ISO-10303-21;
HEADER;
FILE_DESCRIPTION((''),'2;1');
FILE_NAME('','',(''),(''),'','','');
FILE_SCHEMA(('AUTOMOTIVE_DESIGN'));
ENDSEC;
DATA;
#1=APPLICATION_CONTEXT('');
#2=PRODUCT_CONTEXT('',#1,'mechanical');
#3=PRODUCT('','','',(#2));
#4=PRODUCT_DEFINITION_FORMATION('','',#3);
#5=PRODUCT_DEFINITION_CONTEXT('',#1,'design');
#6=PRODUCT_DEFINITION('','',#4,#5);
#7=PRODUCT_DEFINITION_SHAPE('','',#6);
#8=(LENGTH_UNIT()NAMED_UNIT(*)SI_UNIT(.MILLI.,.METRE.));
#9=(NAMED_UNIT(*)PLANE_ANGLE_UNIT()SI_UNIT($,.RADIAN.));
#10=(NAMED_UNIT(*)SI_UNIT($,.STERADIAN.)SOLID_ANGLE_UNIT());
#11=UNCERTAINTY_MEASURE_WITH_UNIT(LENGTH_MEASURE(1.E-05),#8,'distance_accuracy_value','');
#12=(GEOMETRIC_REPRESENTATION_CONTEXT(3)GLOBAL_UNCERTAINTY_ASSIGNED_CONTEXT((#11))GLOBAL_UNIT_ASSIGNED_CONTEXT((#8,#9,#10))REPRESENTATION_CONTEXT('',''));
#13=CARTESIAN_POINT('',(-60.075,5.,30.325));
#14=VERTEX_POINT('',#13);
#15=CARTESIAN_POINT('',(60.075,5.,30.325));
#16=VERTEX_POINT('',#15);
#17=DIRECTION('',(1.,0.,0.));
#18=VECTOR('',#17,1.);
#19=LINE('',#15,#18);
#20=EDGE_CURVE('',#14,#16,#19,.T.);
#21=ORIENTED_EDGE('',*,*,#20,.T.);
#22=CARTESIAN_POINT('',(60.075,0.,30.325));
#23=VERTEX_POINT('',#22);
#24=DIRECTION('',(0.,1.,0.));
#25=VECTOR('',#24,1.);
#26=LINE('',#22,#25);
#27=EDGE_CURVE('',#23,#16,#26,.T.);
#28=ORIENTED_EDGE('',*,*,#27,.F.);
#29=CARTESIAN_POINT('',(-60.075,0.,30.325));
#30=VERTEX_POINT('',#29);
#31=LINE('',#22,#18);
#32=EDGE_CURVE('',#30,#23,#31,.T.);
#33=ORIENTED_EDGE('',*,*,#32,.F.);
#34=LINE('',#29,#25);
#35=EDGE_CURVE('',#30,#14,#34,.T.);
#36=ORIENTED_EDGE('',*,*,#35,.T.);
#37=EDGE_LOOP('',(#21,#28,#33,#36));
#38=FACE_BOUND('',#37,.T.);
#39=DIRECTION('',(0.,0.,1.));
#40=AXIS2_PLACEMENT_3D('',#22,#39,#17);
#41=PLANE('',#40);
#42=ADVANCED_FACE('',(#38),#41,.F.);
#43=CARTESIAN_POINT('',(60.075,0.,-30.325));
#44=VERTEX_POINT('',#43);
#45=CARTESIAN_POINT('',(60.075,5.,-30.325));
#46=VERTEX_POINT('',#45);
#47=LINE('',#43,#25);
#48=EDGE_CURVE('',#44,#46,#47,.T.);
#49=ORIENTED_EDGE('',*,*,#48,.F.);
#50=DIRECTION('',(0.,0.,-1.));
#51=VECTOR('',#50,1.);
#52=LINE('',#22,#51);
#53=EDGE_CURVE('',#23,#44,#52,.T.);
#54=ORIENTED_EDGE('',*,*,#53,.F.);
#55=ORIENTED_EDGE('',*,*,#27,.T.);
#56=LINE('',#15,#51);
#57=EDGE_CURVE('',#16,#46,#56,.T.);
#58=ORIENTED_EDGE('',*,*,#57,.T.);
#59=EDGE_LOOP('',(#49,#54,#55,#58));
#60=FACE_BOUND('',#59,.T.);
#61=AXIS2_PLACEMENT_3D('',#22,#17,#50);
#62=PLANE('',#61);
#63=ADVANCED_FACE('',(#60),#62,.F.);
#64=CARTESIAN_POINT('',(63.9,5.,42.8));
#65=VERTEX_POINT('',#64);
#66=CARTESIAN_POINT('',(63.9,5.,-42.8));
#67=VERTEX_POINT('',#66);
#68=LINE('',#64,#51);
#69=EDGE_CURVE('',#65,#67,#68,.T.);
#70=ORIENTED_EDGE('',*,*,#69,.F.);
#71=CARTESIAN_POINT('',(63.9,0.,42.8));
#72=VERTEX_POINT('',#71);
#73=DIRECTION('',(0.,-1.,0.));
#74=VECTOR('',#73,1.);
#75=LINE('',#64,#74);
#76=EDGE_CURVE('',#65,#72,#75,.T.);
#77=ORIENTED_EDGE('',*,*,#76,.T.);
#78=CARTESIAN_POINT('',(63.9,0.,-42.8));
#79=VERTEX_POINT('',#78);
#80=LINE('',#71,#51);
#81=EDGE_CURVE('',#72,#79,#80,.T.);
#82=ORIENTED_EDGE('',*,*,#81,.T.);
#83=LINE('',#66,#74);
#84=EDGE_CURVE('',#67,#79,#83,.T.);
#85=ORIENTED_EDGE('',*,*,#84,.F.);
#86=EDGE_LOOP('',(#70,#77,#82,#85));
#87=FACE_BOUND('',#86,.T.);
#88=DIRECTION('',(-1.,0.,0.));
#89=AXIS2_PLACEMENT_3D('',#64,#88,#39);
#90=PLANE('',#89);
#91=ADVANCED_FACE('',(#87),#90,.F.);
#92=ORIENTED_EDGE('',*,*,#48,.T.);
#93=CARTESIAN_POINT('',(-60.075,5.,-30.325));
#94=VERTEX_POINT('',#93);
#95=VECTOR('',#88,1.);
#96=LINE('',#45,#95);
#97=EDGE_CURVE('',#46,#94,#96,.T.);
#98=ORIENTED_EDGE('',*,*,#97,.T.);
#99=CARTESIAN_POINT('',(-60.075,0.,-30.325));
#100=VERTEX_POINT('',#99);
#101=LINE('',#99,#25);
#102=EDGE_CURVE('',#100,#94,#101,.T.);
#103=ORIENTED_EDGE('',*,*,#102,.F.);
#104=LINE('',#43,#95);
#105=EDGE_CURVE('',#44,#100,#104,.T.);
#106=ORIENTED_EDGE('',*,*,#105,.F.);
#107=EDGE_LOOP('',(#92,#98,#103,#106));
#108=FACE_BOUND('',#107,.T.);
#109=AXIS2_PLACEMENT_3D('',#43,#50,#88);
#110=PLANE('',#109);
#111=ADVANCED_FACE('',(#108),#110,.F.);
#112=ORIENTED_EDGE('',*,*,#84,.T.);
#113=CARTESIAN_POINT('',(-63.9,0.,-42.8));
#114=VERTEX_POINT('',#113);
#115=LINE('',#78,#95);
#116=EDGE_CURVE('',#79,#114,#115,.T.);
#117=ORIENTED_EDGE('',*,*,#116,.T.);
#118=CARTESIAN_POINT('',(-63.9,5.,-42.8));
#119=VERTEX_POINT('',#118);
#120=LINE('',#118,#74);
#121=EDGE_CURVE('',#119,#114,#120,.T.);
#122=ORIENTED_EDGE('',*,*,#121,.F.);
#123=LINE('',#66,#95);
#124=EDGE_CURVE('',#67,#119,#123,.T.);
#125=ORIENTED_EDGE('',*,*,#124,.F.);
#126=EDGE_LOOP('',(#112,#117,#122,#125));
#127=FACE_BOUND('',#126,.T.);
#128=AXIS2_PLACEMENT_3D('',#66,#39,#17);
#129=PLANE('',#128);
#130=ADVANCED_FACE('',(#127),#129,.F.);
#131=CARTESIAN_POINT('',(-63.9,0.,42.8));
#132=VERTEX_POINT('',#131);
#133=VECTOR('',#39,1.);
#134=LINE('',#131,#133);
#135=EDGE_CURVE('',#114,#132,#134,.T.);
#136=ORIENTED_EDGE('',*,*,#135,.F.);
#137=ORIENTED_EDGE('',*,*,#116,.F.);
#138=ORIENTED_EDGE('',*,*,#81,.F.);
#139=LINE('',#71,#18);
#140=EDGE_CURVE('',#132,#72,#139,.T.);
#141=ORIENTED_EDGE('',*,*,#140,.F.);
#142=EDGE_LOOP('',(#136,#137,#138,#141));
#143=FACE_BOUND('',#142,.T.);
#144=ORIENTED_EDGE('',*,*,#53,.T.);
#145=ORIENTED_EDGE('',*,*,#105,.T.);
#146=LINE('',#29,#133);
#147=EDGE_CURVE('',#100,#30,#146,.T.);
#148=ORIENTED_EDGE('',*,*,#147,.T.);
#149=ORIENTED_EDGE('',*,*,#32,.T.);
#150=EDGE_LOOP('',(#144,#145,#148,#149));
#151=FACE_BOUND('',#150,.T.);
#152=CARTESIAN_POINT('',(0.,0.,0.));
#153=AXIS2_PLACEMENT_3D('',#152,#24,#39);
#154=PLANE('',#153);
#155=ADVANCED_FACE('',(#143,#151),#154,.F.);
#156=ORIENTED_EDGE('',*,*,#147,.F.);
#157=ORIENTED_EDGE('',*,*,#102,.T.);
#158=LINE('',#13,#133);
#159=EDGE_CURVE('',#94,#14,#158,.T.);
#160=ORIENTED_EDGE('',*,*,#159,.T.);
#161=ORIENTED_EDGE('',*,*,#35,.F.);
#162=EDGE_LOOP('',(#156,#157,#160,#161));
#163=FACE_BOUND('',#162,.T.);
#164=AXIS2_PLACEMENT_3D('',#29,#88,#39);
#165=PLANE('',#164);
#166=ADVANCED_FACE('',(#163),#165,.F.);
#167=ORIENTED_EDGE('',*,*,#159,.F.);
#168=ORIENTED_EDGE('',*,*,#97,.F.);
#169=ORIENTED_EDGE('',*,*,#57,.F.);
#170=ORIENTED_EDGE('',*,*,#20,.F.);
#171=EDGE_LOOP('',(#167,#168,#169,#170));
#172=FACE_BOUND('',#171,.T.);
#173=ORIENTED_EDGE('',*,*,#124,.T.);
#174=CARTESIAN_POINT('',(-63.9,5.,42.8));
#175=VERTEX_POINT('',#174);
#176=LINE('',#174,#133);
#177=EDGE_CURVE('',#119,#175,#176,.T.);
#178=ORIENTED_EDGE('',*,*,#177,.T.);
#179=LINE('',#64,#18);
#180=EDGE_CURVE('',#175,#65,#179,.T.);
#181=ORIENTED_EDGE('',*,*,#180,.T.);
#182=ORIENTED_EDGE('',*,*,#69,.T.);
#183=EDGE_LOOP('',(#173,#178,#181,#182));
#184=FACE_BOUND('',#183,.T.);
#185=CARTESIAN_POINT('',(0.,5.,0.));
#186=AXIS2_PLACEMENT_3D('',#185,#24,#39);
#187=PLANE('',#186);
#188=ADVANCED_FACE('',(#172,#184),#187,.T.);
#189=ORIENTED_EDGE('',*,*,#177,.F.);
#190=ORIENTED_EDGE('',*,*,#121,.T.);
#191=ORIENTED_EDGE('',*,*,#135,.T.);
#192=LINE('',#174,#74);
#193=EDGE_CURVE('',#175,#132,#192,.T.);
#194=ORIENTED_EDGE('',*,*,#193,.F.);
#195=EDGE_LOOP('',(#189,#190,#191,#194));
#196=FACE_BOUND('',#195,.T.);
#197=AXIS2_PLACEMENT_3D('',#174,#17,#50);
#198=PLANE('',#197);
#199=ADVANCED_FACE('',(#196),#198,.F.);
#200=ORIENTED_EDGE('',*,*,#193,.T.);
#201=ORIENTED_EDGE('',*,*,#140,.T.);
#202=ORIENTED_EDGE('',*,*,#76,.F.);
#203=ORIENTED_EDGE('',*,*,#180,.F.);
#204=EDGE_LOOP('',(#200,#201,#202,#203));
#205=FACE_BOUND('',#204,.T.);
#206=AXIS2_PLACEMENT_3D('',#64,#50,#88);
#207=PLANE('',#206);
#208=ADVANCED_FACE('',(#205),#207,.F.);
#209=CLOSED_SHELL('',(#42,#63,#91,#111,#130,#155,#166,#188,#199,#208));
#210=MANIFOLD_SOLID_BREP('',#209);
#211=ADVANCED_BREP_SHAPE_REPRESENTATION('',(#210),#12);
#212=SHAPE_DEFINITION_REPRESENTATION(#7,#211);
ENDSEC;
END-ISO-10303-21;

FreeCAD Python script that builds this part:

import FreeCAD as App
import Part
import Sketcher

V = App.Vector
Q = App.Units.Quantity

doc = App.newDocument("Part")
body = doc.addObject("PartDesign::Body", "Body")

# Sketch on XZ plane
sketch1 = body.newObject("Sketcher::SketchObject", "Sketch")
sketch1.AttachmentSupport = (doc.getObject("XZ_Plane"), [""])
sketch1.MapMode = "FlatFace"
sketch1.addGeometry([
    Part.LineSegment(V(-64, -43, 0), V(-64, 43, 0)),
    Part.LineSegment(V(-64, 43, 0), V(64, 43, 0)),
    Part.LineSegment(V(64, 43, 0), V(64, -43, 0)),
    Part.LineSegment(V(64, -43, 0), V(-64, -43, 0)),
], False)
sketch1.addConstraint([
    Sketcher.Constraint("Coincident", 0, 2, 1, 1),
    Sketcher.Constraint("Coincident", 1, 2, 2, 1),
    Sketcher.Constraint("Coincident", 2, 2, 3, 1),
    Sketcher.Constraint("Coincident", 3, 2, 0, 1),
    Sketcher.Constraint("Vertical", 0),
    Sketcher.Constraint("Horizontal", 1),
    Sketcher.Constraint("Vertical", 2),
    Sketcher.Constraint("Horizontal", 3),
    Sketcher.Constraint("Symmetric", 0, 2, 2, 2, -1, 1),
    Sketcher.Constraint("DistanceX", 1, 1, 1, 2, Q("127.8 mm")),
    Sketcher.Constraint("DistanceY", 0, 1, 0, 2, Q("85.6 mm")),
])
pad1 = body.newObject("PartDesign::Pad", "Pad")
pad1.Profile = sketch1
pad1.Length = 5
pad1.Reversed = True

# Sketch on XZ plane
sketch2 = body.newObject("Sketcher::SketchObject", "Sketch001")
sketch2.AttachmentSupport = (doc.getObject("XZ_Plane"), [""])
sketch2.MapMode = "FlatFace"
sketch2.AttachmentOffset = App.Placement(V(0, 0, -5), App.Rotation())
sketch2.addGeometry([
    Part.LineSegment(V(-60, -30, 0), V(-60, 30, 0)),
    Part.LineSegment(V(-60, 30, 0), V(60, 30, 0)),
    Part.LineSegment(V(60, 30, 0), V(60, -30, 0)),
    Part.LineSegment(V(60, -30, 0), V(-60, -30, 0)),
], False)
sketch2.addConstraint([
    Sketcher.Constraint("Coincident", 0, 2, 1, 1),
    Sketcher.Constraint("Coincident", 1, 2, 2, 1),
    Sketcher.Constraint("Coincident", 2, 2, 3, 1),
    Sketcher.Constraint("Coincident", 3, 2, 0, 1),
    Sketcher.Constraint("Vertical", 0),
    Sketcher.Constraint("Horizontal", 1),
    Sketcher.Constraint("Vertical", 2),
    Sketcher.Constraint("Horizontal", 3),
    Sketcher.Constraint("Symmetric", 0, 2, 2, 2, -1, 1),
    Sketcher.Constraint("DistanceX", 1, 1, 1, 2, Q("120.15 mm")),
    Sketcher.Constraint("DistanceY", 0, 1, 0, 2, Q("60.65 mm")),
])
pocket1 = body.newObject("PartDesign::Pocket", "Pocket")
pocket1.Profile = sketch2
pocket1.Length = 5
pocket1.Reversed = True

doc.recompute()
